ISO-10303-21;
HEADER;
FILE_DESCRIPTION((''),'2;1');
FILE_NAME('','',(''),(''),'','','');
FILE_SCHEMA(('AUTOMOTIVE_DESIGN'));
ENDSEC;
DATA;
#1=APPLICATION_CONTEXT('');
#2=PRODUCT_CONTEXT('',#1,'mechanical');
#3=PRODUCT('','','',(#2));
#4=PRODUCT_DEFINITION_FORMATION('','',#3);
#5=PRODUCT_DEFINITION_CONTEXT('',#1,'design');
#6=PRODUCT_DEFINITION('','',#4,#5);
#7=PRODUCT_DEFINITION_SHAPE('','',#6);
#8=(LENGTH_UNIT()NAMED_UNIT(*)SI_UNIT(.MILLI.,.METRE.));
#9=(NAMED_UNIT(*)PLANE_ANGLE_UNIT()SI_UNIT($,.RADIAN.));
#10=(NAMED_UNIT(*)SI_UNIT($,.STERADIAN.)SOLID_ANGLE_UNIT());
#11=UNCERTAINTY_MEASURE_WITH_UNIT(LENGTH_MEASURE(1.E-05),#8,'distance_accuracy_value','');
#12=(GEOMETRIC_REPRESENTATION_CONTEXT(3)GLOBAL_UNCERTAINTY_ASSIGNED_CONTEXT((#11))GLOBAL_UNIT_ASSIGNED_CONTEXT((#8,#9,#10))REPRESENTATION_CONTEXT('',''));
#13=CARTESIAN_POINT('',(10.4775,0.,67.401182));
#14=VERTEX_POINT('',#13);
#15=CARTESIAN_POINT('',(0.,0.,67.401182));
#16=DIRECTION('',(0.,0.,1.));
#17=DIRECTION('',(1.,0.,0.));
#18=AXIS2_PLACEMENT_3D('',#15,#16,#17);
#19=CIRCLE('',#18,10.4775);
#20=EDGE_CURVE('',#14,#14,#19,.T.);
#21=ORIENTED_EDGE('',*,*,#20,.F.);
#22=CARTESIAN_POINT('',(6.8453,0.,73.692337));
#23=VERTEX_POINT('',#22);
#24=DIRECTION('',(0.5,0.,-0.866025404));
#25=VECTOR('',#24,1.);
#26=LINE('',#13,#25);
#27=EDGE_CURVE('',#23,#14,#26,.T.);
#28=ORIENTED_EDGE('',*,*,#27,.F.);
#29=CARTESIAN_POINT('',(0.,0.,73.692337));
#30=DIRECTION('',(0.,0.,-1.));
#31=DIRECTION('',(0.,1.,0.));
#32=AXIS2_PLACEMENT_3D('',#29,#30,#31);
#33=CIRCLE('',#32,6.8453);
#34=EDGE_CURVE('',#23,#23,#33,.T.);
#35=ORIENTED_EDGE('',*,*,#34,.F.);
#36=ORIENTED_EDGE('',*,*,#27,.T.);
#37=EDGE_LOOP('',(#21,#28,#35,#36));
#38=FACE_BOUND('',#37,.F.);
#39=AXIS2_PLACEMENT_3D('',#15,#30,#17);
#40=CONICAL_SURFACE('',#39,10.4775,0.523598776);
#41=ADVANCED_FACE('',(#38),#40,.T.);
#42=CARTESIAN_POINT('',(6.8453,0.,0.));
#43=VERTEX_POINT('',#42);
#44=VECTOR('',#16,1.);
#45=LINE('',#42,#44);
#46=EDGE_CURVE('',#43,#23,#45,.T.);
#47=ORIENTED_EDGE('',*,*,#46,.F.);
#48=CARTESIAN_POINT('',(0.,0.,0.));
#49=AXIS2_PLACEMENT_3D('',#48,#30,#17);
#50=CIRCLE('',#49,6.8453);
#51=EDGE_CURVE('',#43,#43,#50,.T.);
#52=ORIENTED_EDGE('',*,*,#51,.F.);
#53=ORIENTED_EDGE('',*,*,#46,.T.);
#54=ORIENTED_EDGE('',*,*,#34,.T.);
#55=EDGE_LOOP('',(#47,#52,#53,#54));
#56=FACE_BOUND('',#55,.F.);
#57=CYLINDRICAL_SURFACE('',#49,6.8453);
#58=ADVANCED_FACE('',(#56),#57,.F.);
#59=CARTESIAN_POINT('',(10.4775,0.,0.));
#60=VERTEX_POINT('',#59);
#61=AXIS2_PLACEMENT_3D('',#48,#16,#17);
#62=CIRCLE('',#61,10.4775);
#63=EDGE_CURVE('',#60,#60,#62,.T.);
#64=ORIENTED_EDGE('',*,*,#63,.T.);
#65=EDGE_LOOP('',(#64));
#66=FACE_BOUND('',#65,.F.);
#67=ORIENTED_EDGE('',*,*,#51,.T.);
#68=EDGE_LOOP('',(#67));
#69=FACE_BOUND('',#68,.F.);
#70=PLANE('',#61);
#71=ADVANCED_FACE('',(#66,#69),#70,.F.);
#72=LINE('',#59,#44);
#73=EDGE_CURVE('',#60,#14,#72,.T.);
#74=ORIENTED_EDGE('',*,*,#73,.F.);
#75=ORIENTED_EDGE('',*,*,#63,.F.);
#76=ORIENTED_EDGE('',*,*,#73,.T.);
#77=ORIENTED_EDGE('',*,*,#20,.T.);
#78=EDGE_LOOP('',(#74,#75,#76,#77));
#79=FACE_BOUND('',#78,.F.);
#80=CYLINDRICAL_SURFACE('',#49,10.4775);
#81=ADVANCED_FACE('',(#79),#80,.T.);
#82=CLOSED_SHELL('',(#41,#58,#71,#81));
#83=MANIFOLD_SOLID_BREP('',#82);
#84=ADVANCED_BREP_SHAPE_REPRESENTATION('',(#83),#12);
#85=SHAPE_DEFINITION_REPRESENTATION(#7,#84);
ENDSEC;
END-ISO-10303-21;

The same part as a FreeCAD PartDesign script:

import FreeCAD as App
import Part
import Sketcher

V = App.Vector
Q = App.Units.Quantity


def edges_at(feature, points):
    """Names of the edges that pass closest to the given points."""
    edges = feature.Shape.Edges
    near = lambda p: min(range(len(edges)), key=lambda i: edges[i].distToShape(Part.Vertex(*p))[0])
    return sorted({f"Edge{near(p) + 1}" for p in points})

doc = App.newDocument("Part")
body = doc.addObject("PartDesign::Body", "Body")

# Sketch on XY plane
sketch1 = body.newObject("Sketcher::SketchObject", "Sketch")
sketch1.AttachmentSupport = (doc.getObject("XY_Plane"), [""])
sketch1.MapMode = "FlatFace"
sketch1.addGeometry(Part.Circle(V(0, 0, 0), V(0, 0, 1), 10.4775), False)
sketch1.addConstraint([
    Sketcher.Constraint("Coincident", 0, 3, -1, 1),
    Sketcher.Constraint("Diameter", 0, Q("0.825 in")),
])
pad1 = body.newObject("PartDesign::Pad", "Pad")
pad1.Profile = sketch1
pad1.Length = Q("3 in")
doc.recompute()

chamfer = body.newObject("PartDesign::Chamfer", "Chamfer")
chamfer.Base = (pad1, edges_at(pad1, [(-10.477, 0, 76.2)]))
chamfer.ChamferType = "Two distances"
chamfer.Size = Q("0.2 in")
chamfer.Size2 = 8.798818
chamfer.FlipDirection = True

# Sketch on XY plane
sketch2 = body.newObject("Sketcher::SketchObject", "Sketch001")
sketch2.AttachmentSupport = (doc.getObject("XY_Plane"), [""])
sketch2.MapMode = "FlatFace"
sketch2.addGeometry(Part.Circle(V(0, 0, 0), V(0, 0, 1), 6.8453), False)
sketch2.addConstraint([
    Sketcher.Constraint("Coincident", 0, 3, -1, 1),
    Sketcher.Constraint("Diameter", 0, Q("0.539 in")),
])
pocket1 = body.newObject("PartDesign::Pocket", "Pocket")
pocket1.Profile = sketch2
pocket1.Type = "ThroughAll"
pocket1.Reversed = True

doc.recompute()
